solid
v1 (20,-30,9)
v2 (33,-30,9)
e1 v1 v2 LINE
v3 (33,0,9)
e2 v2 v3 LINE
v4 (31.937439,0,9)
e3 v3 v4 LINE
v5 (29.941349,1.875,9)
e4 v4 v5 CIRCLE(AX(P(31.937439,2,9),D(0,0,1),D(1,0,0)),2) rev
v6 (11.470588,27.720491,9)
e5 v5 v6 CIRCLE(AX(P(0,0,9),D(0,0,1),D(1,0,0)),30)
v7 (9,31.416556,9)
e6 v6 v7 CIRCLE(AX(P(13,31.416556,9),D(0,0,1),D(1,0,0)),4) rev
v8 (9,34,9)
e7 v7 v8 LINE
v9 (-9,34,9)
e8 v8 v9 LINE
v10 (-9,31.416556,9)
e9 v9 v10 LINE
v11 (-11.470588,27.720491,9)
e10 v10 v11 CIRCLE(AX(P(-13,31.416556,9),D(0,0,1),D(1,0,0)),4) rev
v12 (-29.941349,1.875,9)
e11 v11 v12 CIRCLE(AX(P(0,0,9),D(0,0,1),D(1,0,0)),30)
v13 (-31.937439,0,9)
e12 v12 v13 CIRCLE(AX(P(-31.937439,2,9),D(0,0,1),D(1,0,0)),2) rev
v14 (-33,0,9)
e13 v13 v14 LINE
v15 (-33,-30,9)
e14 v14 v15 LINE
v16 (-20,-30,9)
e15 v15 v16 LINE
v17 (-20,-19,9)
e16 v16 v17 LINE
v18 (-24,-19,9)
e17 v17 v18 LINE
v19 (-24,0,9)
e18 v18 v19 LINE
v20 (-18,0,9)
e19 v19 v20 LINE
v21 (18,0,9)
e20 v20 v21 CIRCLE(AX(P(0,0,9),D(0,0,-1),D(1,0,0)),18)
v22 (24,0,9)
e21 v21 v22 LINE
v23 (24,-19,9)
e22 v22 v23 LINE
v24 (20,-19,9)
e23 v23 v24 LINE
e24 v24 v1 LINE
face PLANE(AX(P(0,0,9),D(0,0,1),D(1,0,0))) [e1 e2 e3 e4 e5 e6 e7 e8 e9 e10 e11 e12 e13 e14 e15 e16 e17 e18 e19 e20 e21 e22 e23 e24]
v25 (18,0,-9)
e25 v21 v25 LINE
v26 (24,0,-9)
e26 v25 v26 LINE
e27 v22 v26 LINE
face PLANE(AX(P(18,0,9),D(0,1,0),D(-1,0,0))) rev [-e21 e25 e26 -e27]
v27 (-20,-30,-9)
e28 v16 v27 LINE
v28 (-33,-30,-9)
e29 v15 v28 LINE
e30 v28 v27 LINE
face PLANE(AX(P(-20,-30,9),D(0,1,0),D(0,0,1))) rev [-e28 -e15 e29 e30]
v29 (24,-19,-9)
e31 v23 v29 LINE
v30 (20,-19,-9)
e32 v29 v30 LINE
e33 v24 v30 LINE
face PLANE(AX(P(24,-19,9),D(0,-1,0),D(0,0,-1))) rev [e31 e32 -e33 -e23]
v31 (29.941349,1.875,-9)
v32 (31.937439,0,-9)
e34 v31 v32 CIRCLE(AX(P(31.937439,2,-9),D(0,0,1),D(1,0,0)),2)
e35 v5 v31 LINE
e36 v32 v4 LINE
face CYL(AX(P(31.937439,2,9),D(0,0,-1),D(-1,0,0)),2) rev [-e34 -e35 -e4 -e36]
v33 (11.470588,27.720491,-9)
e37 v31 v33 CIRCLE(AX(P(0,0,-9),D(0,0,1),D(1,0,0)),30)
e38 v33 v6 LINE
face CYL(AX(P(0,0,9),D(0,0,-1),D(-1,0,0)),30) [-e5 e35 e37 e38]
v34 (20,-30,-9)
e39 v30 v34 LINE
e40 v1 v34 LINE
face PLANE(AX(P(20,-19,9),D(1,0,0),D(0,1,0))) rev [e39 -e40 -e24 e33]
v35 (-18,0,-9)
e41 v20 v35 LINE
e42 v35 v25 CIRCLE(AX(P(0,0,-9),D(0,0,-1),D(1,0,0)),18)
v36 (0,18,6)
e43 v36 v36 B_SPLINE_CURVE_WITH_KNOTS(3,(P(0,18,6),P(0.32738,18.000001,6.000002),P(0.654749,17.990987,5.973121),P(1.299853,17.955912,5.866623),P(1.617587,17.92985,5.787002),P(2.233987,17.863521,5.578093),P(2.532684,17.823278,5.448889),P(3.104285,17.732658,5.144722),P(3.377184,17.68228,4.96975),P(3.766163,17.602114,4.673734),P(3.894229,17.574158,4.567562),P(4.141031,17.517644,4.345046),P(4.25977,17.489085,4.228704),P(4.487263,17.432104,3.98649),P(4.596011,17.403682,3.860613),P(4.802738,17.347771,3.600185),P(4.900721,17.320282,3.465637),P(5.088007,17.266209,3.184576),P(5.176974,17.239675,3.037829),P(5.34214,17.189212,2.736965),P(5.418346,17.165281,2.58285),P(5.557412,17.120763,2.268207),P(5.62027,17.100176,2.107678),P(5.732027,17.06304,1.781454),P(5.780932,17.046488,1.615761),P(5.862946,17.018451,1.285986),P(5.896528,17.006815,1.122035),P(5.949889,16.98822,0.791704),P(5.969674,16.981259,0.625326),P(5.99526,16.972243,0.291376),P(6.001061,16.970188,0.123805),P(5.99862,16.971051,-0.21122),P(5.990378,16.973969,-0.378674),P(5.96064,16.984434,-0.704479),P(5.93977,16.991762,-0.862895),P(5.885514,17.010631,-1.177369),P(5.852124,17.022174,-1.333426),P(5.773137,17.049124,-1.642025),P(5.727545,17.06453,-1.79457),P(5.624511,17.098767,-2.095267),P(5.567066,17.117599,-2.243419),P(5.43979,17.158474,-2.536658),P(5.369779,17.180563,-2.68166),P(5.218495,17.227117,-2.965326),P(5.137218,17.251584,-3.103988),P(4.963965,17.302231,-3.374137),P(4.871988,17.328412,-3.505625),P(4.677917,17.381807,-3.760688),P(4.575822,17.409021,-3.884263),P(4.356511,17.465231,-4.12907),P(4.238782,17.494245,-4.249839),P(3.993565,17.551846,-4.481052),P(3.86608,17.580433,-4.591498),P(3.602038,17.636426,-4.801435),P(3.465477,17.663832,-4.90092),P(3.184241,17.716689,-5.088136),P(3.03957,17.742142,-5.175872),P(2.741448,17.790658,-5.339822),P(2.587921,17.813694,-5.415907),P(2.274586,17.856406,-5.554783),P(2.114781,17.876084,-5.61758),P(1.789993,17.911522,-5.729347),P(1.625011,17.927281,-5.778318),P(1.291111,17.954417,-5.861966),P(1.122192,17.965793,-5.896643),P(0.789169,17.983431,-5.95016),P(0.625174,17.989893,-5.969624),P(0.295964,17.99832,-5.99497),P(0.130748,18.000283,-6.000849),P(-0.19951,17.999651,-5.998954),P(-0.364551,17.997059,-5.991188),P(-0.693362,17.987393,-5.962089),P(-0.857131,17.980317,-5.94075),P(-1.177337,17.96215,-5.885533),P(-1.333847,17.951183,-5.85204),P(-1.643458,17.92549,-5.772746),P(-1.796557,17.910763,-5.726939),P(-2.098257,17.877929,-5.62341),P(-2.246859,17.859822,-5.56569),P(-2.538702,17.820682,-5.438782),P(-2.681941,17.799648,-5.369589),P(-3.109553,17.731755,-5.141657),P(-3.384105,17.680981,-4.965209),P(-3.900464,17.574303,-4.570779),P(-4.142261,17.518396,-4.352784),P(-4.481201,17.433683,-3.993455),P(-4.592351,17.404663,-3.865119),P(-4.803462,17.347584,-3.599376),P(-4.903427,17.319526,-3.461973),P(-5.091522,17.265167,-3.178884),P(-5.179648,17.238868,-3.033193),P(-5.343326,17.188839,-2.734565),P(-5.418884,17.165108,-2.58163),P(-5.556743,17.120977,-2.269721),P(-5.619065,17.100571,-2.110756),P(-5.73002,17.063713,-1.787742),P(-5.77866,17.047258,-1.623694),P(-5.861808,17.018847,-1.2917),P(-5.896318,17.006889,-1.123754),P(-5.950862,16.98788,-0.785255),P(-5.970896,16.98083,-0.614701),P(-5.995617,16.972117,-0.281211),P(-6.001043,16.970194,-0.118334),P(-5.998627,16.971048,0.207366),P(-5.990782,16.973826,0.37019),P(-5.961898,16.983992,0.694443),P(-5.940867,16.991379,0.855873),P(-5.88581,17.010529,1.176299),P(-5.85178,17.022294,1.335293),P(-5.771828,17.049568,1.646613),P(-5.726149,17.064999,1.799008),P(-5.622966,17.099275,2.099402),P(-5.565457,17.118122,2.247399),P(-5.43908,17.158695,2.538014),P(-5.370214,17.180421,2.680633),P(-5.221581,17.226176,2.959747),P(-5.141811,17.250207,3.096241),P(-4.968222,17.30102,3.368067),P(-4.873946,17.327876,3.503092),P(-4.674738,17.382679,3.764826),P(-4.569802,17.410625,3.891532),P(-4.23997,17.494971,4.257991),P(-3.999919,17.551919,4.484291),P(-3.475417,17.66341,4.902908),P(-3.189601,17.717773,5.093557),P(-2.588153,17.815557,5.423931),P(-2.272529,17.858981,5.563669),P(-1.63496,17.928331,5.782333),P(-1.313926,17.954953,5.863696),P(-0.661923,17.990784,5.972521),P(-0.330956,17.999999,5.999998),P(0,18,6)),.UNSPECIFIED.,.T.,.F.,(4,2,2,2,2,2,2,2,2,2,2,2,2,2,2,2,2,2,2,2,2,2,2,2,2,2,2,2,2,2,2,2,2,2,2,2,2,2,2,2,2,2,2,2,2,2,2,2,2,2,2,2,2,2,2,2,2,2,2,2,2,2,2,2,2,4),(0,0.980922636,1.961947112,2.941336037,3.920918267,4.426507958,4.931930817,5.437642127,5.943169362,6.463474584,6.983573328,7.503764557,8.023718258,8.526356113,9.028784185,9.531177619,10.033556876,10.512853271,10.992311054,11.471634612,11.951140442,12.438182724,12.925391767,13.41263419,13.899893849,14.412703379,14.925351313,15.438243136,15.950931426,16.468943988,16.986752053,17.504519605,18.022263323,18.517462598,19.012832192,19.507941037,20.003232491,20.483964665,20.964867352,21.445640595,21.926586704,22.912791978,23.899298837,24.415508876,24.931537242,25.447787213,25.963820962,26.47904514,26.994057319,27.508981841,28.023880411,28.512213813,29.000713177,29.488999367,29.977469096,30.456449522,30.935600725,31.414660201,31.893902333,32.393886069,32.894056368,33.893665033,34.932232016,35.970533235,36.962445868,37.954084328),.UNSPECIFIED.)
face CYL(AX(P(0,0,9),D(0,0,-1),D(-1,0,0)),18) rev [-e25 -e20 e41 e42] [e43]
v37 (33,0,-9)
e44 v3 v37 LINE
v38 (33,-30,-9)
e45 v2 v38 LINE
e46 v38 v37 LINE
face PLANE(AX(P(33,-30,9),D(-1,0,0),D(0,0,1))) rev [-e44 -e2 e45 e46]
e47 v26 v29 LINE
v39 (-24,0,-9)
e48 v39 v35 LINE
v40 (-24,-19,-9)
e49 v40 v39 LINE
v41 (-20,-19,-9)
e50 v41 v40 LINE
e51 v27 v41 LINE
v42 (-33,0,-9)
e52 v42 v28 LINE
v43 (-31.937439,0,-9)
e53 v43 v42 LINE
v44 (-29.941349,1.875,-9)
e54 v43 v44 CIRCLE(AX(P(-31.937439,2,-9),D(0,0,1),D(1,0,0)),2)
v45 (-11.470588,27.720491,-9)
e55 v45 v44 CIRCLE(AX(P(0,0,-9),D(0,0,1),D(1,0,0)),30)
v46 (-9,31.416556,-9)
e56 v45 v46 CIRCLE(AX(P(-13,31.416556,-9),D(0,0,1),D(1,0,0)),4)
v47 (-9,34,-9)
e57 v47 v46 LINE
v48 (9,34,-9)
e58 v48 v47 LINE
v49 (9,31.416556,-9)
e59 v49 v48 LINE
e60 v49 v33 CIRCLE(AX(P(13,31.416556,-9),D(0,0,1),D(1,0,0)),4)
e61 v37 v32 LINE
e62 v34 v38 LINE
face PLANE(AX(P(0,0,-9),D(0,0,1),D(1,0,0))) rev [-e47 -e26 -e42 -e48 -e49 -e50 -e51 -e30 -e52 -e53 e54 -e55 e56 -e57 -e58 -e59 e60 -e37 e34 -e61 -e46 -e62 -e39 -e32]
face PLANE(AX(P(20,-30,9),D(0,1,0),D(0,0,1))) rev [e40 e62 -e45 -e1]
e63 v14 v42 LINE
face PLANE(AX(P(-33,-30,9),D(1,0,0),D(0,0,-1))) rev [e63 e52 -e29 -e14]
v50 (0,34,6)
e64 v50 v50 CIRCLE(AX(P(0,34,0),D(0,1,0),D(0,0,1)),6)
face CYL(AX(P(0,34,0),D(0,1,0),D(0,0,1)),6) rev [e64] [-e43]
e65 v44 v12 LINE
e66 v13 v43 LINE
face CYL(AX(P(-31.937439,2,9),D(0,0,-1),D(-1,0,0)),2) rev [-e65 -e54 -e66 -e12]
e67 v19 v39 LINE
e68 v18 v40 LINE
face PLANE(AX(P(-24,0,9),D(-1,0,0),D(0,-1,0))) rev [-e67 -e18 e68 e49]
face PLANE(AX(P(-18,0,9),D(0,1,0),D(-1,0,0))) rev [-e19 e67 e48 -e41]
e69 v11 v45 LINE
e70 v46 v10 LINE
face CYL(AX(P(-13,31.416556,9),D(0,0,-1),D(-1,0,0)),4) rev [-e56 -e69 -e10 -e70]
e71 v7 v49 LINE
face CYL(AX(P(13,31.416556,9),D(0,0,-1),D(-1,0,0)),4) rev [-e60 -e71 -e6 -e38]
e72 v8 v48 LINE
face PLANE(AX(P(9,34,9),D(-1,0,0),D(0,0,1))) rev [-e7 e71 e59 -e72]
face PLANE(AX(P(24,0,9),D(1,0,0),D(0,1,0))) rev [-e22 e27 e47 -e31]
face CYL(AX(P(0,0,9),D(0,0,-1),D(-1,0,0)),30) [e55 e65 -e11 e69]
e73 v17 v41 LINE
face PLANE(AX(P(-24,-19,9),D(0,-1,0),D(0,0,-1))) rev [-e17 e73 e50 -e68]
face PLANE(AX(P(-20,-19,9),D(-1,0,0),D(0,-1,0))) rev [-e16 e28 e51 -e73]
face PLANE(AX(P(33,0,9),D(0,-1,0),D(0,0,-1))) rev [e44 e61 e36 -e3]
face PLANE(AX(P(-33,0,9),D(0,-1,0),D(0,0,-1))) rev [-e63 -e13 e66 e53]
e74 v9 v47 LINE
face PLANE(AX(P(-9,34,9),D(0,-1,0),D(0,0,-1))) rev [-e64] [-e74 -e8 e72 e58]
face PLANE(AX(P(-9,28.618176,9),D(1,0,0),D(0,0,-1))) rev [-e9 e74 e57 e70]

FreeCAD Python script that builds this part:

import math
import FreeCAD as App
import Part
import Sketcher
Q = App.Units.Quantity


def edges_at(feature, points):
    """Names of the edges that pass closest to the given points."""
    edges = feature.Shape.Edges
    near = lambda p: min(range(len(edges)), key=lambda i: edges[i].distToShape(Part.Vertex(*p))[0])
    return sorted({f"Edge{near(p) + 1}" for p in points})

doc = App.newDocument("Part")
body = doc.addObject("PartDesign::Body", "Body")

# Sketch on XY plane
sketch1 = body.newObject("Sketcher::SketchObject", "Sketch")
sketch1.AttachmentSupport = (doc.getObject("XY_Plane"), [""])
sketch1.MapMode = "FlatFace"
sketch1.addGeometry(Part.LineSegment(App.Vector(-24, 0, 0), App.Vector(-18, 0, 0)), False)
sketch1.addGeometry(Part.ArcOfCircle(Part.Circle(App.Vector(0, 0, 0), App.Vector(0, 0, 1), 18), math.radians(0), math.radians(180)), False)
sketch1.addGeometry(Part.LineSegment(App.Vector(18, 0, 0), App.Vector(24, 0, 0)), False)
sketch1.addGeometry(Part.LineSegment(App.Vector(24, 0, 0), App.Vector(24, -19, 0)), False)
sketch1.addGeometry(Part.LineSegment(App.Vector(24, -19, 0), App.Vector(20, -19, 0)), False)
sketch1.addGeometry(Part.LineSegment(App.Vector(20, -19, 0), App.Vector(20, -30, 0)), False)
sketch1.addGeometry(Part.LineSegment(App.Vector(20, -30, 0), App.Vector(33, -30, 0)), False)
sketch1.addGeometry(Part.LineSegment(App.Vector(33, -30, 0), App.Vector(33, 0, 0)), False)
sketch1.addGeometry(Part.LineSegment(App.Vector(33, 0, 0), App.Vector(30, 0, 0)), False)
sketch1.addGeometry(Part.ArcOfCircle(Part.Circle(App.Vector(0, 0, 0), App.Vector(0, 0, 1), 30), math.radians(0), math.radians(73)), False)
sketch1.addGeometry(Part.LineSegment(App.Vector(9, 28.6, 0), App.Vector(9, 34, 0)), False)
sketch1.addGeometry(Part.LineSegment(App.Vector(9, 34, 0), App.Vector(-9, 34, 0)), False)
sketch1.addGeometry(Part.LineSegment(App.Vector(-9, 34, 0), App.Vector(-9, 28.6, 0)), False)
sketch1.addGeometry(Part.ArcOfCircle(Part.Circle(App.Vector(0, 0, 0), App.Vector(0, 0, 1), 30), math.radians(107), math.radians(180)), False)
sketch1.addGeometry(Part.LineSegment(App.Vector(-30, 0, 0), App.Vector(-33, 0, 0)), False)
sketch1.addGeometry(Part.LineSegment(App.Vector(-33, 0, 0), App.Vector(-33, -30, 0)), False)
sketch1.addGeometry(Part.LineSegment(App.Vector(-33, -30, 0), App.Vector(-20, -30, 0)), False)
sketch1.addGeometry(Part.LineSegment(App.Vector(-20, -30, 0), App.Vector(-20, -19, 0)), False)
sketch1.addGeometry(Part.LineSegment(App.Vector(-20, -19, 0), App.Vector(-24, -19, 0)), False)
sketch1.addGeometry(Part.LineSegment(App.Vector(-24, -19, 0), App.Vector(-24, 0, 0)), False)
sketch1.addConstraint(Sketcher.Constraint("Coincident", 0, 2, 1, 2))
sketch1.addConstraint(Sketcher.Constraint("Coincident", 1, 1, 2, 1))
sketch1.addConstraint(Sketcher.Constraint("Coincident", 2, 2, 3, 1))
sketch1.addConstraint(Sketcher.Constraint("Coincident", 3, 2, 4, 1))
sketch1.addConstraint(Sketcher.Constraint("Coincident", 4, 2, 5, 1))
sketch1.addConstraint(Sketcher.Constraint("Coincident", 5, 2, 6, 1))
sketch1.addConstraint(Sketcher.Constraint("Coincident", 6, 2, 7, 1))
sketch1.addConstraint(Sketcher.Constraint("Coincident", 7, 2, 8, 1))
sketch1.addConstraint(Sketcher.Constraint("Coincident", 8, 2, 9, 1))
sketch1.addConstraint(Sketcher.Constraint("Coincident", 9, 2, 10, 1))
sketch1.addConstraint(Sketcher.Constraint("Coincident", 10, 2, 11, 1))
sketch1.addConstraint(Sketcher.Constraint("Coincident", 11, 2, 12, 1))
sketch1.addConstraint(Sketcher.Constraint("Coincident", 12, 2, 13, 1))
sketch1.addConstraint(Sketcher.Constraint("Coincident", 13, 2, 14, 1))
sketch1.addConstraint(Sketcher.Constraint("Coincident", 14, 2, 15, 1))
sketch1.addConstraint(Sketcher.Constraint("Coincident", 15, 2, 16, 1))
sketch1.addConstraint(Sketcher.Constraint("Coincident", 16, 2, 17, 1))
sketch1.addConstraint(Sketcher.Constraint("Coincident", 17, 2, 18, 1))
sketch1.addConstraint(Sketcher.Constraint("Coincident", 18, 2, 19, 1))
sketch1.addConstraint(Sketcher.Constraint("Coincident", 19, 2, 0, 1))
sketch1.addConstraint(Sketcher.Constraint("Horizontal", 0))
sketch1.addConstraint(Sketcher.Constraint("Horizontal", 2))
sketch1.addConstraint(Sketcher.Constraint("Vertical", 3))
sketch1.addConstraint(Sketcher.Constraint("Horizontal", 4))
sketch1.addConstraint(Sketcher.Constraint("Vertical", 5))
sketch1.addConstraint(Sketcher.Constraint("Horizontal", 6))
sketch1.addConstraint(Sketcher.Constraint("Vertical", 7))
sketch1.addConstraint(Sketcher.Constraint("Horizontal", 8))
sketch1.addConstraint(Sketcher.Constraint("Vertical", 10))
sketch1.addConstraint(Sketcher.Constraint("Horizontal", 11))
sketch1.addConstraint(Sketcher.Constraint("Vertical", 12))
sketch1.addConstraint(Sketcher.Constraint("Horizontal", 14))
sketch1.addConstraint(Sketcher.Constraint("Vertical", 15))
sketch1.addConstraint(Sketcher.Constraint("Horizontal", 16))
sketch1.addConstraint(Sketcher.Constraint("Vertical", 17))
sketch1.addConstraint(Sketcher.Constraint("Horizontal", 18))
sketch1.addConstraint(Sketcher.Constraint("Vertical", 19))
sketch1.addConstraint(Sketcher.Constraint("Coincident", 1, 3, -1, 1))
sketch1.addConstraint(Sketcher.Constraint("Coincident", 9, 3, -1, 1))
sketch1.addConstraint(Sketcher.Constraint("Coincident", 13, 3, -1, 1))
sketch1.addConstraint(Sketcher.Constraint("Equal", 9, 13))
sketch1.addConstraint(Sketcher.Constraint("Symmetric", 7, 2, 14, 2, -1, 1))
sketch1.addConstraint(Sketcher.Constraint("Symmetric", 2, 2, 19, 2, -1, 1))
sketch1.addConstraint(Sketcher.Constraint("Symmetric", 5, 2, 16, 2, -2))
sketch1.addConstraint(Sketcher.Constraint("PointOnObject", 0, 2, -1))
sketch1.addConstraint(Sketcher.Constraint("PointOnObject", 7, 2, -1))
sketch1.addConstraint(Sketcher.Constraint("Horizontal", 9, 2, 12, 2))
sketch1.addConstraint(Sketcher.Constraint("Horizontal", 4, 2, 17, 2))
sketch1.addConstraint(Sketcher.Constraint("Radius", 1, Q("18 mm")))
sketch1.addConstraint(Sketcher.Constraint("Radius", 9, Q("30 mm")))
sketch1.addConstraint(Sketcher.Constraint("DistanceX", 0, 1, 0, 2, Q("6 mm")))
sketch1.addConstraint(Sketcher.Constraint("DistanceX", 4, 2, 4, 1, Q("4 mm")))
sketch1.addConstraint(Sketcher.Constraint("DistanceX", 6, 1, 6, 2, Q("13 mm")))
sketch1.addConstraint(Sketcher.Constraint("DistanceX", 11, 2, 11, 1, Q("18 mm")))
sketch1.addConstraint(Sketcher.Constraint("DistanceY", 3, 2, 3, 1, Q("19 mm")))
sketch1.addConstraint(Sketcher.Constraint("DistanceY", 5, 2, 5, 1, Q("11 mm")))
sketch1.addConstraint(Sketcher.Constraint("DistanceY", -1, 1, 10, 2, Q("34 mm")))
pad1 = body.newObject("PartDesign::Pad", "Pad")
pad1.Profile = sketch1
pad1.Length = 18
pad1.Midplane = True
doc.recompute()

fillet = body.newObject("PartDesign::Fillet", "Fillet")
fillet.Base = (pad1, edges_at(pad1, [(-9, 28.618, 0), (9, 28.618, 0)]))
fillet.Radius = 4
doc.recompute()

fillet2 = body.newObject("PartDesign::Fillet", "Fillet001")
fillet2.Base = (fillet, edges_at(fillet, [(30, 0, 0), (-30, 0, 0)]))
fillet2.Radius = 2

# Sketch on XZ plane
sketch2 = body.newObject("Sketcher::SketchObject", "Sketch001")
sketch2.AttachmentSupport = (doc.getObject("XZ_Plane"), [""])
sketch2.MapMode = "FlatFace"
sketch2.AttachmentOffset = App.Placement(App.Vector(0, 0, -34), App.Rotation())
sketch2.addGeometry(Part.Circle(App.Vector(0, 0, 0), App.Vector(0, 0, 1), 6), False)
sketch2.addConstraint(Sketcher.Constraint("Coincident", 0, 3, -1, 1))
sketch2.addConstraint(Sketcher.Constraint("Diameter", 0, Q("12 mm")))
doc.recompute()
hole = body.newObject("PartDesign::Hole", "Hole")
hole.Profile = sketch2
hole.ThreadType = "None"
hole.Diameter = 12
hole.DepthType = "ThroughAll"
hole.Reversed = True

doc.recompute()
